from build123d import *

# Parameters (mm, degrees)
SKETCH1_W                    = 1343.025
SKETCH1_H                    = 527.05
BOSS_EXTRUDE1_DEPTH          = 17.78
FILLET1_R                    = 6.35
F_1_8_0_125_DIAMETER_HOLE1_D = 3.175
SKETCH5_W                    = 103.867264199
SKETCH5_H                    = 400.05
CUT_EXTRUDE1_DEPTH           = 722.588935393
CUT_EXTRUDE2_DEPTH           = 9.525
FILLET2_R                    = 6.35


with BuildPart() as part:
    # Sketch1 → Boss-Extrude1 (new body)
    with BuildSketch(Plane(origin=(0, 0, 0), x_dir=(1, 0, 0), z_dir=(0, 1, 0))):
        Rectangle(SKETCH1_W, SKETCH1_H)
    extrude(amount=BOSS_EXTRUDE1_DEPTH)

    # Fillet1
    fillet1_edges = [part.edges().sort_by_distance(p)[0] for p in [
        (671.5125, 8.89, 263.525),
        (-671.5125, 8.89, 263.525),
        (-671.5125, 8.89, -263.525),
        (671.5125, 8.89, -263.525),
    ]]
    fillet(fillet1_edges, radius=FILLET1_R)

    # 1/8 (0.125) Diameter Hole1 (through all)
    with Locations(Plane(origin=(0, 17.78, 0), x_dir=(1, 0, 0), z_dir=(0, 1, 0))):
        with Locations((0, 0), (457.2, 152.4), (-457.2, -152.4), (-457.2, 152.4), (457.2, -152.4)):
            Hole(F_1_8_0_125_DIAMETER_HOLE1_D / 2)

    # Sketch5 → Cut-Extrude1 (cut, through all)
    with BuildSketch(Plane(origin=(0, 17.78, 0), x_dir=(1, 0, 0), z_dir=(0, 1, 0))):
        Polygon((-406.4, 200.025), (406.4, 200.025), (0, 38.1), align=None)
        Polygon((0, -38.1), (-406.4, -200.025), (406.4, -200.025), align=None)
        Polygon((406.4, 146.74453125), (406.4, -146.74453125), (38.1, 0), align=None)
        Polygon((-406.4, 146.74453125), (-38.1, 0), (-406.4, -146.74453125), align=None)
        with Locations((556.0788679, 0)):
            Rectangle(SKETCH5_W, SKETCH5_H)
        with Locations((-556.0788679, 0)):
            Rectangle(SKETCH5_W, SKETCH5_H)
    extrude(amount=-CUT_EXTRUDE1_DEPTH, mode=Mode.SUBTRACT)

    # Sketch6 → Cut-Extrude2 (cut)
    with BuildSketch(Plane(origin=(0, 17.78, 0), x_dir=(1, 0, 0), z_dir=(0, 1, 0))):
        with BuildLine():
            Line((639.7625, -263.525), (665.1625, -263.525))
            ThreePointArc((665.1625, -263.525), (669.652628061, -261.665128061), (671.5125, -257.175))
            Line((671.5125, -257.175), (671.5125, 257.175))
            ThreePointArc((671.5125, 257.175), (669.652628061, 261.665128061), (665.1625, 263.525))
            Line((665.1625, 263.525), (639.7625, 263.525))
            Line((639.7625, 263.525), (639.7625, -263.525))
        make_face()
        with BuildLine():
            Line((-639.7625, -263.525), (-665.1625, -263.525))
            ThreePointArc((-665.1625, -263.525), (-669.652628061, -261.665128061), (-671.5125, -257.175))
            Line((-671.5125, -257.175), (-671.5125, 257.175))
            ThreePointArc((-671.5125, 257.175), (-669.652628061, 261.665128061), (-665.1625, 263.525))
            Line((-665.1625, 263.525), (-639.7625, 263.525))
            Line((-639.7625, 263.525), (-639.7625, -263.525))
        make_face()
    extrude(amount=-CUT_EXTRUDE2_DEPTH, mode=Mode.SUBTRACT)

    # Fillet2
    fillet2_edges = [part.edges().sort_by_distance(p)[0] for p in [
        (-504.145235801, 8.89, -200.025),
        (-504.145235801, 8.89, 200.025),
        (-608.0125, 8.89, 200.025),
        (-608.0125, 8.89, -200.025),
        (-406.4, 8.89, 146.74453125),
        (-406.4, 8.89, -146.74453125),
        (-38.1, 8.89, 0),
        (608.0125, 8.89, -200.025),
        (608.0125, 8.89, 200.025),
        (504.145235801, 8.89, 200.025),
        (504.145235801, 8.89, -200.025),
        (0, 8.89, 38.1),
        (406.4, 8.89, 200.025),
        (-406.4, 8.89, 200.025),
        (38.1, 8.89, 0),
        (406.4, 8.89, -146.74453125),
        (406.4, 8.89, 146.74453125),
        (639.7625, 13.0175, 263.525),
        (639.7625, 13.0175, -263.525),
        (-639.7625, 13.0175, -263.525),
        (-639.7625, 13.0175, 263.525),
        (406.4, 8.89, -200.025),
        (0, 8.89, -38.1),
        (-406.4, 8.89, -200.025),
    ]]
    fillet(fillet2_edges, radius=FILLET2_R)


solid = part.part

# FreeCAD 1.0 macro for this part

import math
import FreeCAD as App
import Part
import Sketcher
from FreeCAD import Vector
Q = App.Units.Quantity


def edges_at(feature, points):
    """Names of the edges that pass closest to the given points."""
    edges = feature.Shape.Edges
    near = lambda p: min(range(len(edges)), key=lambda i: edges[i].distToShape(Part.Vertex(*p))[0])
    return sorted({f"Edge{near(p) + 1}" for p in points})

doc = App.newDocument("Part")
body = doc.addObject("PartDesign::Body", "Body")

# Sketch on XZ plane
sketch1 = doc.addObject("Sketcher::SketchObject", "Sketch")
body.addObject(sketch1)
sketch1.AttachmentSupport = (doc.XZ_Plane, [""])
sketch1.MapMode = "FlatFace"
sketch1.addGeometry([
    Part.LineSegment(Vector(-671.5125, -263.525, 0), Vector(-671.5125, 263.525, 0)),
    Part.LineSegment(Vector(-671.5125, 263.525, 0), Vector(671.5125, 263.525, 0)),
    Part.LineSegment(Vector(671.5125, 263.525, 0), Vector(671.5125, -263.525, 0)),
    Part.LineSegment(Vector(671.5125, -263.525, 0), Vector(-671.5125, -263.525, 0)),
], False)
sketch1.addConstraint([
    Sketcher.Constraint("Coincident", 0, 2, 1, 1),
    Sketcher.Constraint("Coincident", 1, 2, 2, 1),
    Sketcher.Constraint("Coincident", 2, 2, 3, 1),
    Sketcher.Constraint("Coincident", 3, 2, 0, 1),
    Sketcher.Constraint("Vertical", 0),
    Sketcher.Constraint("Horizontal", 1),
    Sketcher.Constraint("Vertical", 2),
    Sketcher.Constraint("Horizontal", 3),
    Sketcher.Constraint("Symmetric", 0, 2, 2, 2, -1, 1),
    Sketcher.Constraint("DistanceY", 0, 1, 0, 2, Q("20.75 in")),
    Sketcher.Constraint("DistanceX", 1, 1, 1, 2, Q("52.875 in")),
])
pad1 = doc.addObject("PartDesign::Pad", "Pad")
body.addObject(pad1)
pad1.Profile = sketch1
pad1.Length = Q("0.7 in")
pad1.Reversed = True
doc.recompute()

fillet = doc.addObject("PartDesign::Fillet", "Fillet")
body.addObject(fillet)
fillet.Base = (pad1, edges_at(pad1, [
    (671.513, 8.89, 263.525),
    (-671.513, 8.89, 263.525),
    (-671.513, 8.89, -263.525),
    (671.513, 8.89, -263.525),
]))
fillet.Radius = Q("0.25 in")

# Sketch on XZ plane
sketch2 = doc.addObject("Sketcher::SketchObject", "Sketch001")
body.addObject(sketch2)
sketch2.AttachmentSupport = (doc.XZ_Plane, [""])
sketch2.MapMode = "FlatFace"
sketch2.AttachmentOffset = App.Placement(Vector(0, 0, -0.7 * 25.4), App.Rotation())
sketch2.addGeometry([
    Part.Circle(Vector(0, 0, 0), Vector(0, 0, 1), 1.5875),  # 0
    Part.Circle(Vector(457.2, -152.4, 0), Vector(0, 0, 1), 1.5875),  # 1
    Part.Circle(Vector(-457.2, 152.4, 0), Vector(0, 0, 1), 1.5875),  # 2
    Part.Circle(Vector(-457.2, -152.4, 0), Vector(0, 0, 1), 1.5875),  # 3
    Part.Circle(Vector(457.2, 152.4, 0), Vector(0, 0, 1), 1.5875),  # 4
], False)
sketch2.addConstraint([
    Sketcher.Constraint("Coincident", 0, 3, -1, 1),
    Sketcher.Constraint("Equal", 0, 1),
    Sketcher.Constraint("Equal", 1, 2),
    Sketcher.Constraint("Equal", 2, 3),
    Sketcher.Constraint("Equal", 3, 4),
    Sketcher.Constraint("Symmetric", 1, 3, 2, 3, -1, 1),
    Sketcher.Constraint("Symmetric", 3, 3, 4, 3, -1, 1),
    Sketcher.Constraint("Symmetric", 1, 3, 3, 3, -2),
    Sketcher.Constraint("Diameter", 0, Q("0.125 in")),
    Sketcher.Constraint("DistanceX", -1, 1, 1, 3, Q("18 in")),
    Sketcher.Constraint("DistanceY", 1, 3, -1, 1, Q("6 in")),
])
doc.recompute()
hole = doc.addObject("PartDesign::Hole", "Hole")
body.addObject(hole)
hole.Profile = sketch2
hole.ThreadType = "None"
hole.Diameter = Q("0.125 in")
hole.DepthType = "ThroughAll"
hole.Reversed = True

# Sketch on XZ plane
sketch3 = doc.addObject("Sketcher::SketchObject", "Sketch002")
body.addObject(sketch3)
sketch3.AttachmentSupport = (doc.XZ_Plane, [""])
sketch3.MapMode = "FlatFace"
sketch3.AttachmentOffset = App.Placement(Vector(0, 0, -0.7 * 25.4), App.Rotation())
sketch3.addGeometry([
    Part.LineSegment(Vector(406.4, -200.025, 0), Vector(-406.4, -200.025, 0)),  # 0
    Part.LineSegment(Vector(-406.4, -200.025, 0), Vector(0, -38.1, 0)),  # 1
    Part.LineSegment(Vector(0, -38.1, 0), Vector(406.4, -200.025, 0)),  # 2
    Part.LineSegment(Vector(0, 38.1, 0), Vector(-406.4, 200.025, 0)),  # 3
    Part.LineSegment(Vector(-406.4, 200.025, 0), Vector(406.4, 200.025, 0)),  # 4
    Part.LineSegment(Vector(406.4, 200.025, 0), Vector(0, 38.1, 0)),  # 5
    Part.LineSegment(Vector(406.4, 146.744531, 0), Vector(406.4, -146.744531, 0)),  # 6
    Part.LineSegment(Vector(406.4, -146.744531, 0), Vector(38.1, 0, 0)),  # 7
    Part.LineSegment(Vector(38.1, 0, 0), Vector(406.4, 146.744531, 0)),  # 8
    Part.LineSegment(Vector(-38.1, 0, 0), Vector(-406.4, -146.744531, 0)),  # 9
    Part.LineSegment(Vector(-406.4, -146.744531, 0), Vector(-406.4, 146.744531, 0)),  # 10
    Part.LineSegment(Vector(-406.4, 146.744531, 0), Vector(-38.1, 0, 0)),  # 11
    Part.LineSegment(Vector(504.145236, -200.025, 0), Vector(504.145236, 200.025, 0)),  # 12
    Part.LineSegment(Vector(504.145236, 200.025, 0), Vector(608.0125, 200.025, 0)),  # 13
    Part.LineSegment(Vector(608.0125, 200.025, 0), Vector(608.0125, -200.025, 0)),  # 14
    Part.LineSegment(Vector(608.0125, -200.025, 0), Vector(504.145236, -200.025, 0)),  # 15
    Part.LineSegment(Vector(-608.0125, -200.025, 0), Vector(-608.0125, 200.025, 0)),  # 16
    Part.LineSegment(Vector(-608.0125, 200.025, 0), Vector(-504.145236, 200.025, 0)),  # 17
    Part.LineSegment(Vector(-504.145236, 200.025, 0), Vector(-504.145236, -200.025, 0)),  # 18
    Part.LineSegment(Vector(-504.145236, -200.025, 0), Vector(-608.0125, -200.025, 0)),  # 19
], False)
sketch3.addConstraint([
    Sketcher.Constraint("Coincident", 0, 2, 1, 1),
    Sketcher.Constraint("Coincident", 1, 2, 2, 1),
    Sketcher.Constraint("Coincident", 2, 2, 0, 1),
    Sketcher.Constraint("Coincident", 3, 2, 4, 1),
    Sketcher.Constraint("Coincident", 4, 2, 5, 1),
    Sketcher.Constraint("Coincident", 5, 2, 3, 1),
    Sketcher.Constraint("Coincident", 6, 2, 7, 1),
    Sketcher.Constraint("Coincident", 7, 2, 8, 1),
    Sketcher.Constraint("Coincident", 8, 2, 6, 1),
    Sketcher.Constraint("Coincident", 9, 2, 10, 1),
    Sketcher.Constraint("Coincident", 10, 2, 11, 1),
    Sketcher.Constraint("Coincident", 11, 2, 9, 1),
    Sketcher.Constraint("Coincident", 12, 2, 13, 1),
    Sketcher.Constraint("Coincident", 13, 2, 14, 1),
    Sketcher.Constraint("Coincident", 14, 2, 15, 1),
    Sketcher.Constraint("Coincident", 15, 2, 12, 1),
    Sketcher.Constraint("Coincident", 16, 2, 17, 1),
    Sketcher.Constraint("Coincident", 17, 2, 18, 1),
    Sketcher.Constraint("Coincident", 18, 2, 19, 1),
    Sketcher.Constraint("Coincident", 19, 2, 16, 1),
    Sketcher.Constraint("Horizontal", 0),
    Sketcher.Constraint("Horizontal", 4),
    Sketcher.Constraint("Vertical", 6),
    Sketcher.Constraint("Vertical", 10),
    Sketcher.Constraint("Vertical", 12),
    Sketcher.Constraint("Horizontal", 13),
    Sketcher.Constraint("Vertical", 14),
    Sketcher.Constraint("Horizontal", 15),
    Sketcher.Constraint("Vertical", 16),
    Sketcher.Constraint("Horizontal", 17),
    Sketcher.Constraint("Vertical", 18),
    Sketcher.Constraint("Horizontal", 19),
    Sketcher.Constraint("Symmetric", 2, 2, 3, 2, -1, 1),
    Sketcher.Constraint("Symmetric", 1, 2, 5, 2, -1, 1),
    Sketcher.Constraint("Symmetric", 8, 2, 9, 2, -1, 1),
    Sketcher.Constraint("Symmetric", 7, 2, 11, 2, -1, 1),
    Sketcher.Constraint("Symmetric", 14, 2, 16, 2, -1, 1),
    Sketcher.Constraint("Symmetric", 12, 2, 18, 2, -1, 1),
    Sketcher.Constraint("PointOnObject", 1, 2, -2),
    Sketcher.Constraint("PointOnObject", 7, 2, -1),
    Sketcher.Constraint("Parallel", 1, 5),
    Sketcher.Constraint("Parallel", 3, 7),
    Sketcher.Constraint("Parallel", 5, 8),
    Sketcher.Constraint("Parallel", 7, 11),
    Sketcher.Constraint("Horizontal", 6, 2, 9, 2),
    Sketcher.Constraint("Horizontal", 4, 2, 12, 2),
    Sketcher.Constraint("Horizontal", 2, 2, 14, 2),
    Sketcher.Constraint("Vertical", 4, 2, 6, 2),
    Sketcher.Constraint("DistanceX", 0, 2, 0, 1, Q("32 in")),
    Sketcher.Constraint("DistanceY", 1, 2, 5, 2, Q("3 in")),
    Sketcher.Constraint("DistanceX", 11, 2, 7, 2, Q("3 in")),
    Sketcher.Constraint("DistanceY", 12, 1, 12, 2, Q("15.75 in")),
    Sketcher.Constraint("DistanceX", -1, 1, 13, 2, Q("23.9375 in")),
    Sketcher.Constraint("DistanceX", 13, 1, 13, 2, 103.867264),
])
pocket1 = doc.addObject("PartDesign::Pocket", "Pocket")
body.addObject(pocket1)
pocket1.Profile = sketch3
pocket1.Type = "ThroughAll"
pocket1.Reversed = True

# Sketch on XZ plane
sketch4 = doc.addObject("Sketcher::SketchObject", "Sketch003")
body.addObject(sketch4)
sketch4.AttachmentSupport = (doc.XZ_Plane, [""])
sketch4.MapMode = "FlatFace"
sketch4.AttachmentOffset = App.Placement(Vector(0, 0, -0.7 * 25.4), App.Rotation())
sketch4.addGeometry([
    Part.LineSegment(Vector(639.7625, 263.525, 0), Vector(665.1625, 263.525, 0)),  # 0
    Part.ArcOfCircle(Part.Circle(Vector(665.1625, 257.175, 0), Vector(0, 0, 1), 6.35), math.radians(0), math.radians(90)),  # 1
    Part.LineSegment(Vector(671.5125, 257.175, 0), Vector(671.5125, -257.175, 0)),  # 2
    Part.ArcOfCircle(Part.Circle(Vector(665.1625, -257.175, 0), Vector(0, 0, 1), 6.35), math.radians(-90), math.radians(0)),  # 3
    Part.LineSegment(Vector(665.1625, -263.525, 0), Vector(639.7625, -263.525, 0)),  # 4
    Part.LineSegment(Vector(639.7625, -263.525, 0), Vector(639.7625, 263.525, 0)),  # 5
    Part.LineSegment(Vector(-665.1625, 263.525, 0), Vector(-639.7625, 263.525, 0)),  # 6
    Part.LineSegment(Vector(-639.7625, 263.525, 0), Vector(-639.7625, -263.525, 0)),  # 7
    Part.LineSegment(Vector(-639.7625, -263.525, 0), Vector(-665.1625, -263.525, 0)),  # 8
    Part.ArcOfCircle(Part.Circle(Vector(-665.1625, -257.175, 0), Vector(0, 0, 1), 6.35), math.radians(180), math.radians(270)),  # 9
    Part.LineSegment(Vector(-671.5125, -257.175, 0), Vector(-671.5125, 257.175, 0)),  # 10
    Part.ArcOfCircle(Part.Circle(Vector(-665.1625, 257.175, 0), Vector(0, 0, 1), 6.35), math.radians(90), math.radians(180)),  # 11
], False)
sketch4.addConstraint([
    Sketcher.Constraint("Tangent", 0, 2, 1, 2),
    Sketcher.Constraint("Tangent", 1, 1, 2, 1),
    Sketcher.Constraint("Tangent", 2, 2, 3, 2),
    Sketcher.Constraint("Tangent", 3, 1, 4, 1),
    Sketcher.Constraint("Coincident", 4, 2, 5, 1),
    Sketcher.Constraint("Coincident", 5, 2, 0, 1),
    Sketcher.Constraint("Coincident", 6, 2, 7, 1),
    Sketcher.Constraint("Coincident", 7, 2, 8, 1),
    Sketcher.Constraint("Tangent", 8, 2, 9, 2),
    Sketcher.Constraint("Tangent", 9, 1, 10, 1),
    Sketcher.Constraint("Tangent", 10, 2, 11, 2),
    Sketcher.Constraint("Tangent", 11, 1, 6, 1),
    Sketcher.Constraint("Horizontal", 0),
    Sketcher.Constraint("Vertical", 2),
    Sketcher.Constraint("Horizontal", 4),
    Sketcher.Constraint("Vertical", 5),
    Sketcher.Constraint("Horizontal", 6),
    Sketcher.Constraint("Vertical", 7),
    Sketcher.Constraint("Horizontal", 8),
    Sketcher.Constraint("Vertical", 10),
    Sketcher.Constraint("Equal", 1, 3),
    Sketcher.Constraint("Equal", 3, 9),
    Sketcher.Constraint("Equal", 9, 11),
    Sketcher.Constraint("Symmetric", 1, 3, 9, 3, -1, 1),
    Sketcher.Constraint("Symmetric", 4, 2, 6, 2, -1, 1),
    Sketcher.Constraint("Horizontal", 3, 3, 9, 3),
    Sketcher.Constraint("DistanceX", 0, 1, 0, 2, Q("1 in")),
    Sketcher.Constraint("Radius", 1, Q("0.25 in")),
    Sketcher.Constraint("DistanceY", 2, 2, 2, 1, Q("20.25 in")),
    Sketcher.Constraint("DistanceX", -1, 1, 1, 3, Q("26.1875 in")),
])
pocket2 = doc.addObject("PartDesign::Pocket", "Pocket001")
body.addObject(pocket2)
pocket2.Profile = sketch4
pocket2.Length = Q("0.375 in")
pocket2.Reversed = True
doc.recompute()

fillet2 = doc.addObject("PartDesign::Fillet", "Fillet001")
body.addObject(fillet2)
fillet2.Base = (pocket2, edges_at(pocket2, [
    (-504.145, 8.89, -200.025),
    (-504.145, 8.89, 200.025),
    (-608.012, 8.89, 200.025),
    (-608.012, 8.89, -200.025),
    (-406.4, 8.89, 146.745),
    (-406.4, 8.89, -146.745),
    (-38.1, 8.89, 0),
    (608.012, 8.89, -200.025),
    (608.012, 8.89, 200.025),
    (504.145, 8.89, 200.025),
    (504.145, 8.89, -200.025),
    (0, 8.89, 38.1),
    (406.4, 8.89, 200.025),
    (-406.4, 8.89, 200.025),
    (38.1, 8.89, 0),
    (406.4, 8.89, -146.745),
    (406.4, 8.89, 146.745),
    (639.763, 13.018, 263.525),
    (639.763, 13.018, -263.525),
    (-639.763, 13.018, -263.525),
    (-639.763, 13.018, 263.525),
    (406.4, 8.89, -200.025),
    (0, 8.89, -38.1),
    (-406.4, 8.89, -200.025),
]))
fillet2.Radius = Q("0.25 in")

doc.recompute()
